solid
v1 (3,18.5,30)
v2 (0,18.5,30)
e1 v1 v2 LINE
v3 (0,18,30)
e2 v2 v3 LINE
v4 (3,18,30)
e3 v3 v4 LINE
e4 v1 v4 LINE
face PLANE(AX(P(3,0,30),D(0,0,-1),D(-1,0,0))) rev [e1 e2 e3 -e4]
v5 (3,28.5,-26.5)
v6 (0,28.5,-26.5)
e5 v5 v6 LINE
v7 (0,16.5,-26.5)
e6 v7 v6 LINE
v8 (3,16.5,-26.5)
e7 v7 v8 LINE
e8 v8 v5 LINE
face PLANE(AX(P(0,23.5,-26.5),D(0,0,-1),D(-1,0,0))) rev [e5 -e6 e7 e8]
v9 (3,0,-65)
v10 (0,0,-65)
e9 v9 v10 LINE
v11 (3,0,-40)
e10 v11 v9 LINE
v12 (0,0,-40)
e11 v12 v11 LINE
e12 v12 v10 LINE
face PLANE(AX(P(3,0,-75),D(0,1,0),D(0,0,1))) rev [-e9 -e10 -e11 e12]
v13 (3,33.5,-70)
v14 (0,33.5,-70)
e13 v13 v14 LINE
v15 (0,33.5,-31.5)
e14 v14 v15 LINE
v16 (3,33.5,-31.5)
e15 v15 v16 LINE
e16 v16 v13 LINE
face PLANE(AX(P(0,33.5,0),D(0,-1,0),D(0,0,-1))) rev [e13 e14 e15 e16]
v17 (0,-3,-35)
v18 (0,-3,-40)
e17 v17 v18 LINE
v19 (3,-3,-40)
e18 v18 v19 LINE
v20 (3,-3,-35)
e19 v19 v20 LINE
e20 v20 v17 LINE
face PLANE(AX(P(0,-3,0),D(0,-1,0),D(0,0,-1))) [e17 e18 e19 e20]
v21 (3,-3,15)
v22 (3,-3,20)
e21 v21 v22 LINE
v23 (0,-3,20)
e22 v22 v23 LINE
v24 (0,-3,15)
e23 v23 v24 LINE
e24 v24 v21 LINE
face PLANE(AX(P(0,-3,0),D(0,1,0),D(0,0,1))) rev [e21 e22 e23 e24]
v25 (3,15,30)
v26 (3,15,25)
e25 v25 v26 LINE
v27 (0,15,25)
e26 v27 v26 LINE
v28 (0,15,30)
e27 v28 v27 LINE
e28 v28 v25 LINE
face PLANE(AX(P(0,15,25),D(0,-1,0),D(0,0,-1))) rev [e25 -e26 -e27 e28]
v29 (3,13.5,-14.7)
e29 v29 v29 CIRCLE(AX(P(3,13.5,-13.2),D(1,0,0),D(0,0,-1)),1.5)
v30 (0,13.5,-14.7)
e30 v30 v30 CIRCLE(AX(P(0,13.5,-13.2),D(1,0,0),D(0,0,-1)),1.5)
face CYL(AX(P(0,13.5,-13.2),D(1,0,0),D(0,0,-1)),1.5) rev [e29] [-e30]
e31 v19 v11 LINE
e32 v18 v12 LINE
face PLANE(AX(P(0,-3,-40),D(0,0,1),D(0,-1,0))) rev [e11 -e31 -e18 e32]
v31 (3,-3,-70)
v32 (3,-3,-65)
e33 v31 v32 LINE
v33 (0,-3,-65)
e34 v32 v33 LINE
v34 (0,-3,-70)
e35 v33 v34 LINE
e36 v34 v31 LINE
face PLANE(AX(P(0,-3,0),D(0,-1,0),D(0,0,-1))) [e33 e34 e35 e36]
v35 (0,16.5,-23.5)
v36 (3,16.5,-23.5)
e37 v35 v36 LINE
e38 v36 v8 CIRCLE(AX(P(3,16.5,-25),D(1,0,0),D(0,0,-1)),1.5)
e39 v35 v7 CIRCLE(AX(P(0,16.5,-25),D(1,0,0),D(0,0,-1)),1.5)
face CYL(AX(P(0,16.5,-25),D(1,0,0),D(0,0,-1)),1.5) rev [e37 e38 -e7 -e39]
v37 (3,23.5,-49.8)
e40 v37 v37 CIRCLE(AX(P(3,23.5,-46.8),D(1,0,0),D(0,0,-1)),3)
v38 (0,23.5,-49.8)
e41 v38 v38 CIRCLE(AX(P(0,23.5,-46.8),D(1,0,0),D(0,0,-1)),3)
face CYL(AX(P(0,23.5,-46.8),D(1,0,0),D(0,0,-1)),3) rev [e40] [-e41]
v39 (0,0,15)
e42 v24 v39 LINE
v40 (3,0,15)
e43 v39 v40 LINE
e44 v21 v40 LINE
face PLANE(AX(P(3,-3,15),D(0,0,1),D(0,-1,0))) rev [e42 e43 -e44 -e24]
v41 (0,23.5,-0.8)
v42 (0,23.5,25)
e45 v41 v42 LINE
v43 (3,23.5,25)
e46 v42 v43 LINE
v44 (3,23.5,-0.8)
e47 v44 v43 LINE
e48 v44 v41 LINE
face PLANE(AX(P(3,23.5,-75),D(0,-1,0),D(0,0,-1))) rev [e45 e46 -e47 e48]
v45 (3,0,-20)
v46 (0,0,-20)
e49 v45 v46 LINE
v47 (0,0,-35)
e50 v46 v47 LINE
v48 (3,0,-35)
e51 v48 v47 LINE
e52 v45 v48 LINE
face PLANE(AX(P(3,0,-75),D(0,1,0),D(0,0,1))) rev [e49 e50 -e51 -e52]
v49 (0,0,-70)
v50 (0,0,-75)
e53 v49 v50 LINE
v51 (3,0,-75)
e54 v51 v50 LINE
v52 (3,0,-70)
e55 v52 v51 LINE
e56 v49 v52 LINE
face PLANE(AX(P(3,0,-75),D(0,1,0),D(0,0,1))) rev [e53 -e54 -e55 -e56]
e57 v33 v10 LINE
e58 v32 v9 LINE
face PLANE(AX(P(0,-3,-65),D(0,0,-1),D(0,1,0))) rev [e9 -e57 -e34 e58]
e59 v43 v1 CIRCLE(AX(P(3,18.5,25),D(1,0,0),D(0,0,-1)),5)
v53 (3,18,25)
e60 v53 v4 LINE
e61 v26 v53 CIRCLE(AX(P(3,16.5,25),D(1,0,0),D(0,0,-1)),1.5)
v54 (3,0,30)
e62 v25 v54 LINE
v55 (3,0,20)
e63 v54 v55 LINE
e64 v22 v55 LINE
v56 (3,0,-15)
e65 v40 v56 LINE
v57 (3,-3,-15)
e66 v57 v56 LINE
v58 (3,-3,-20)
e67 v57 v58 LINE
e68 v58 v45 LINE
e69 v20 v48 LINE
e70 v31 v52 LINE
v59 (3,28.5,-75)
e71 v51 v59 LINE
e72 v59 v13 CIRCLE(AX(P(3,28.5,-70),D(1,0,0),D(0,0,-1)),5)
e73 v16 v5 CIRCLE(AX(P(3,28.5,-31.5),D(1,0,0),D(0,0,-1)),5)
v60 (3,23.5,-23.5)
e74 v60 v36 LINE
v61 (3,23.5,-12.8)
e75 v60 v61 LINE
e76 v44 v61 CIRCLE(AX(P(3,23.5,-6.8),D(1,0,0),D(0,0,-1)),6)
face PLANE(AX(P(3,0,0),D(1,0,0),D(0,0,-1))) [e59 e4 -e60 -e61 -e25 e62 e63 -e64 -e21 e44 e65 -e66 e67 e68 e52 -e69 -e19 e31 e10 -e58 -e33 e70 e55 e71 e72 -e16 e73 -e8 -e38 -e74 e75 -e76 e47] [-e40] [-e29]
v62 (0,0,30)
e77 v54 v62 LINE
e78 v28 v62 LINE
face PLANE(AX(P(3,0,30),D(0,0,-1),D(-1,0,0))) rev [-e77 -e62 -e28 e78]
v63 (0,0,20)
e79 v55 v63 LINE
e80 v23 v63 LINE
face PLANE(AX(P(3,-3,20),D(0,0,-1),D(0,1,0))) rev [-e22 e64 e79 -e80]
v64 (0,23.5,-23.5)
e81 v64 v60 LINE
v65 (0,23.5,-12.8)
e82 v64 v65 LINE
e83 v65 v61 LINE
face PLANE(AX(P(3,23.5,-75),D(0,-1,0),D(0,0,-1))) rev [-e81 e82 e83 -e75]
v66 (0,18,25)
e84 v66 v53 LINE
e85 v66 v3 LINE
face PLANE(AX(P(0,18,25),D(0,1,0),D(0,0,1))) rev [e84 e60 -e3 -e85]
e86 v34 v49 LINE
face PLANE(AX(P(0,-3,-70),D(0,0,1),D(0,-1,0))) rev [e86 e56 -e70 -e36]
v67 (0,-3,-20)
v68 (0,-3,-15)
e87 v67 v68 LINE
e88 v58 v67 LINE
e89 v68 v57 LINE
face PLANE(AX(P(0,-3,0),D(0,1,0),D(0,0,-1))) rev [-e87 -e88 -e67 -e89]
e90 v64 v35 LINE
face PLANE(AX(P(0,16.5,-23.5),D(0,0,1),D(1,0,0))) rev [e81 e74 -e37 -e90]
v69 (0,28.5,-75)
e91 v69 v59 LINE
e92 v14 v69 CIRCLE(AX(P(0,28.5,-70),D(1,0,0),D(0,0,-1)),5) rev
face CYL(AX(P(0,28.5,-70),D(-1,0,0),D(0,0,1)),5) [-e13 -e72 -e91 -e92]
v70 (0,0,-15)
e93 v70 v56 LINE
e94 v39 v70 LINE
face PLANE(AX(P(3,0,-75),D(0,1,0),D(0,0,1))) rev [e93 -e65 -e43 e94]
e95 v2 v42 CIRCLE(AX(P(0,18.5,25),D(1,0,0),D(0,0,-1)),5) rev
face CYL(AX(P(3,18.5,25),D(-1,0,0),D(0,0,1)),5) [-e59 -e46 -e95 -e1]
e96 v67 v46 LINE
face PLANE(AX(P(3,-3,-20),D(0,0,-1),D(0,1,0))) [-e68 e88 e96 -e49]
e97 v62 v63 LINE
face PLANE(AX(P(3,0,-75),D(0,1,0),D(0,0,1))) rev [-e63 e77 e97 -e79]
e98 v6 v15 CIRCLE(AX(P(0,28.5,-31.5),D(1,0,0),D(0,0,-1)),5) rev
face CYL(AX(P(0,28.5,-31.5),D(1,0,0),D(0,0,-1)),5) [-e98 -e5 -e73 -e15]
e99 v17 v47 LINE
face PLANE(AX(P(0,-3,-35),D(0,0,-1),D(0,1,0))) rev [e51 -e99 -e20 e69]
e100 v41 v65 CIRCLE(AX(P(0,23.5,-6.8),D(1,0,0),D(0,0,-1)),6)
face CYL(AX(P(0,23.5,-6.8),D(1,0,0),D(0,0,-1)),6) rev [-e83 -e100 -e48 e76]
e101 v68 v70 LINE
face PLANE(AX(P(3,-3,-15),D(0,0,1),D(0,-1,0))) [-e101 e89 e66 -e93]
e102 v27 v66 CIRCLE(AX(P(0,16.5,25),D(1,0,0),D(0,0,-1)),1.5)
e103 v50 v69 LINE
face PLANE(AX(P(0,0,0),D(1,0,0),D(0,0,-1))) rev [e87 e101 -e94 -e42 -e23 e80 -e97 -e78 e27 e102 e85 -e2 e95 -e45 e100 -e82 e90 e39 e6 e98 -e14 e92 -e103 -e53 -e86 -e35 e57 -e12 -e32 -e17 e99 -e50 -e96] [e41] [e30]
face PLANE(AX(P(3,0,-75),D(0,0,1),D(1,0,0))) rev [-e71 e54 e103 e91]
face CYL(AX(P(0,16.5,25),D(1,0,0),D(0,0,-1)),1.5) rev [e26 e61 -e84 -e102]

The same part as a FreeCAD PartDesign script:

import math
import FreeCAD as App
import Part
import Sketcher

V = App.Vector
Q = App.Units.Quantity


def edges_at(feature, points):
    """Names of the edges that pass closest to the given points."""
    edges = feature.Shape.Edges
    near = lambda p: min(range(len(edges)), key=lambda i: edges[i].distToShape(Part.Vertex(*p))[0])
    return sorted({f"Edge{near(p) + 1}" for p in points})


def add_polygon(sketch, points):
    """Adds a closed chain of lines whose ends are joined by coincident constraints."""
    first, n = sketch.GeometryCount, len(points)
    for a, b in zip(points, points[1:] + points[:1]):
        sketch.addGeometry(Part.LineSegment(App.Vector(*a, 0), App.Vector(*b, 0)), False)
    for i in range(n):
        sketch.addConstraint(Sketcher.Constraint("Coincident", first + i, 2, first + (i + 1) % n, 1))

doc = App.newDocument("Part")
body = doc.addObject("PartDesign::Body", "Body")

sketch1 = body.newObject("Sketcher::SketchObject", "Sketch")
sketch1.AttachmentSupport = (doc.getObject("YZ_Plane"), [""])
sketch1.MapMode = "FlatFace"
add_polygon(sketch1, [(23.5, 30), (0, 30), (0, -75), (23.5, -75)])
sketch1.addConstraint([
    Sketcher.Constraint("Horizontal", 0),
    Sketcher.Constraint("Vertical", 1),
    Sketcher.Constraint("Horizontal", 2),
    Sketcher.Constraint("Vertical", 3),
    Sketcher.Constraint("PointOnObject", 0, 2, -2),
    Sketcher.Constraint("DistanceY", 1, 2, 1, 1, Q("105 mm")),
    Sketcher.Constraint("DistanceX", 0, 2, 0, 1, Q("23.5 mm")),
    Sketcher.Constraint("DistanceY", -1, 1, 0, 2, Q("30 mm")),
])
pad1 = body.newObject("PartDesign::Pad", "Pad")
pad1.Profile = sketch1
pad1.Length = 3

sketch2 = body.newObject("Sketcher::SketchObject", "Sketch001")
sketch2.AttachmentSupport = (doc.getObject("YZ_Plane"), [""])
sketch2.MapMode = "FlatFace"
sketch2.AttachmentOffset = App.Placement(V(0, 0, 3), App.Rotation())
sketch2.addGeometry([
    Part.Circle(V(23.5, -6.8, 0), V(0, 0, 1), 6),
    Part.Circle(V(13.5, -13.2, 0), V(0, 0, 1), 1.5),
], False)
sketch2.addConstraint([
    Sketcher.Constraint("Diameter", 0, Q("12 mm")),
    Sketcher.Constraint("Diameter", 1, Q("3 mm")),
    Sketcher.Constraint("DistanceX", 1, 3, 0, 3, Q("10 mm")),
    Sketcher.Constraint("DistanceX", -1, 1, 0, 3, Q("23.5 mm")),
    Sketcher.Constraint("DistanceY", 0, 3, -1, 1, Q("6.8 mm")),
    Sketcher.Constraint("DistanceY", 1, 3, -1, 1, Q("13.2 mm")),
])
pocket1 = body.newObject("PartDesign::Pocket", "Pocket")
pocket1.Profile = sketch2
pocket1.Type = "ThroughAll"

sketch3 = body.newObject("Sketcher::SketchObject", "Sketch002")
sketch3.AttachmentSupport = (doc.getObject("YZ_Plane"), [""])
sketch3.MapMode = "FlatFace"
sketch3.AttachmentOffset = App.Placement(V(0, 0, 3), App.Rotation())
sketch3.addGeometry([
    Part.LineSegment(V(15, 30, 0), V(15, 25, 0)),
    Part.ArcOfCircle(Part.Circle(V(16.5, 25, 0), V(0, 0, 1), 1.5), math.radians(180), math.radians(360)),
    Part.LineSegment(V(18, 25, 0), V(18, 30, 0)),
    Part.LineSegment(V(18, 30, 0), V(15, 30, 0)),
], False)
sketch3.addConstraint([
    Sketcher.Constraint("Tangent", 0, 2, 1, 1),
    Sketcher.Constraint("Tangent", 1, 2, 2, 1),
    Sketcher.Constraint("Coincident", 2, 2, 3, 1),
    Sketcher.Constraint("Coincident", 3, 2, 0, 1),
    Sketcher.Constraint("Vertical", 0),
    Sketcher.Constraint("Vertical", 2),
    Sketcher.Constraint("Horizontal", 3),
    Sketcher.Constraint("Radius", 1, Q("1.5 mm")),
    Sketcher.Constraint("DistanceY", 0, 2, 0, 1, Q("5 mm")),
    Sketcher.Constraint("DistanceY", -1, 1, 1, 3, Q("25 mm")),
    Sketcher.Constraint("DistanceX", -1, 1, 0, 2, Q("15 mm")),
])
pocket2 = body.newObject("PartDesign::Pocket", "Pocket001")
pocket2.Profile = sketch3
pocket2.Type = "ThroughAll"

sketch4 = body.newObject("Sketcher::SketchObject", "Sketch003")
sketch4.AttachmentSupport = (doc.getObject("XZ_Plane"), [""])
sketch4.MapMode = "FlatFace"
add_polygon(sketch4, [(0, 20), (0, 15), (3, 15), (3, 20)])
sketch4.addConstraint([
    Sketcher.Constraint("Vertical", 0),
    Sketcher.Constraint("Horizontal", 1),
    Sketcher.Constraint("Vertical", 2),
    Sketcher.Constraint("Horizontal", 3),
    Sketcher.Constraint("PointOnObject", 0, 2, -2),
    Sketcher.Constraint("DistanceX", 1, 1, 1, 2, Q("3 mm")),
    Sketcher.Constraint("DistanceY", 0, 2, 0, 1, Q("5 mm")),
    Sketcher.Constraint("DistanceY", -1, 1, 0, 2, Q("15 mm")),
])
pad2 = body.newObject("PartDesign::Pad", "Pad001")
pad2.Profile = sketch4
pad2.Length = 3
doc.recompute()

mirrored = body.newObject("PartDesign::Mirrored", "Mirrored")
mirrored.Originals = [pad2]
mirrored.MirrorPlane = (doc.getObject("XY_Plane"), [""])
body.Tip = mirrored

sketch5 = body.newObject("Sketcher::SketchObject", "Sketch004")
sketch5.AttachmentSupport = (doc.getObject("YZ_Plane"), [""])
sketch5.MapMode = "FlatFace"
sketch5.AttachmentOffset = App.Placement(V(0, 0, 3), App.Rotation())
sketch5.addGeometry([
    Part.LineSegment(V(23.5, -23.5, 0), V(16.5, -23.5, 0)),
    Part.ArcOfCircle(Part.Circle(V(16.5, -25, 0), V(0, 0, 1), 1.5), math.radians(90), math.radians(270)),
    Part.LineSegment(V(16.5, -26.5, 0), V(23.5, -26.5, 0)),
    Part.LineSegment(V(23.5, -26.5, 0), V(23.5, -23.5, 0)),
], False)
sketch5.addConstraint([
    Sketcher.Constraint("Tangent", 0, 2, 1, 1),
    Sketcher.Constraint("Tangent", 1, 2, 2, 1),
    Sketcher.Constraint("Coincident", 2, 2, 3, 1),
    Sketcher.Constraint("Coincident", 3, 2, 0, 1),
    Sketcher.Constraint("Horizontal", 0),
    Sketcher.Constraint("Horizontal", 2),
    Sketcher.Constraint("Vertical", 3),
    Sketcher.Constraint("Radius", 1, Q("1.5 mm")),
    Sketcher.Constraint("DistanceX", 0, 2, 0, 1, Q("7 mm")),
    Sketcher.Constraint("DistanceY", 1, 3, -1, 1, Q("25 mm")),
    Sketcher.Constraint("DistanceX", -1, 1, 1, 3, Q("16.5 mm")),
])
pocket3 = body.newObject("PartDesign::Pocket", "Pocket002")
pocket3.Profile = sketch5
pocket3.Type = "ThroughAll"

sketch6 = body.newObject("Sketcher::SketchObject", "Sketch005")
sketch6.AttachmentSupport = (doc.getObject("XZ_Plane"), [""])
sketch6.MapMode = "FlatFace"
add_polygon(sketch6, [(0, -35), (0, -40), (3, -40), (3, -35)])
add_polygon(sketch6, [(0, -65), (0, -70), (3, -70), (3, -65)])
sketch6.addConstraint([
    Sketcher.Constraint("Vertical", 0),
    Sketcher.Constraint("Horizontal", 1),
    Sketcher.Constraint("Vertical", 2),
    Sketcher.Constraint("Horizontal", 3),
    Sketcher.Constraint("Vertical", 4),
    Sketcher.Constraint("Horizontal", 5),
    Sketcher.Constraint("Vertical", 6),
    Sketcher.Constraint("Horizontal", 7),
    Sketcher.Constraint("PointOnObject", 0, 2, -2),
    Sketcher.Constraint("PointOnObject", 4, 2, -2),
    Sketcher.Constraint("Vertical", 2, 2, 5, 2),
    Sketcher.Constraint("Equal", 2, 4),
    Sketcher.Constraint("DistanceX", 1, 1, 1, 2, Q("3 mm")),
    Sketcher.Constraint("DistanceY", 0, 2, 0, 1, Q("5 mm")),
    Sketcher.Constraint("DistanceY", 0, 2, -1, 1, Q("40 mm")),
    Sketcher.Constraint("DistanceY", 4, 2, -1, 1, Q("70 mm")),
])
pad3 = body.newObject("PartDesign::Pad", "Pad002")
pad3.Profile = sketch6
pad3.Length = 3

sketch7 = body.newObject("Sketcher::SketchObject", "Sketch006")
sketch7.AttachmentSupport = (doc.getObject("XZ_Plane"), [""])
sketch7.MapMode = "FlatFace"
sketch7.AttachmentOffset = App.Placement(V(0, 0, -23.5), App.Rotation())
add_polygon(sketch7, [(0, -75), (0, -26.5), (3, -26.5), (3, -75)])
sketch7.addConstraint([
    Sketcher.Constraint("Vertical", 0),
    Sketcher.Constraint("Horizontal", 1),
    Sketcher.Constraint("Vertical", 2),
    Sketcher.Constraint("Horizontal", 3),
    Sketcher.Constraint("PointOnObject", 0, 2, -2),
    Sketcher.Constraint("DistanceX", 1, 1, 1, 2, Q("3 mm")),
    Sketcher.Constraint("DistanceY", 0, 1, 0, 2, Q("48.5 mm")),
    Sketcher.Constraint("DistanceY", 2, 2, -1, 1, Q("75 mm")),
])
pad4 = body.newObject("PartDesign::Pad", "Pad003")
pad4.Profile = sketch7
pad4.Length = 10
pad4.Reversed = True

sketch8 = body.newObject("Sketcher::SketchObject", "Sketch007")
sketch8.AttachmentSupport = (doc.getObject("YZ_Plane"), [""])
sketch8.MapMode = "FlatFace"
sketch8.AttachmentOffset = App.Placement(V(0, 0, 3), App.Rotation())
sketch8.addGeometry(Part.Circle(V(23.5, -46.8, 0), V(0, 0, 1), 3), False)
sketch8.addConstraint([
    Sketcher.Constraint("Diameter", 0, Q("6 mm")),
    Sketcher.Constraint("DistanceX", -1, 1, 0, 3, Q("23.5 mm")),
    Sketcher.Constraint("DistanceY", 0, 3, -1, 1, Q("46.8 mm")),
])
pocket4 = body.newObject("PartDesign::Pocket", "Pocket003")
pocket4.Profile = sketch8
pocket4.Type = "ThroughAll"
doc.recompute()

fillet = body.newObject("PartDesign::Fillet", "Fillet")
fillet.Base = (pocket4, edges_at(pocket4, [(1.5, 33.5, -26.5), (1.5, 33.5, -75), (1.5, 23.5, 30)]))
fillet.Radius = 5

doc.recompute()
